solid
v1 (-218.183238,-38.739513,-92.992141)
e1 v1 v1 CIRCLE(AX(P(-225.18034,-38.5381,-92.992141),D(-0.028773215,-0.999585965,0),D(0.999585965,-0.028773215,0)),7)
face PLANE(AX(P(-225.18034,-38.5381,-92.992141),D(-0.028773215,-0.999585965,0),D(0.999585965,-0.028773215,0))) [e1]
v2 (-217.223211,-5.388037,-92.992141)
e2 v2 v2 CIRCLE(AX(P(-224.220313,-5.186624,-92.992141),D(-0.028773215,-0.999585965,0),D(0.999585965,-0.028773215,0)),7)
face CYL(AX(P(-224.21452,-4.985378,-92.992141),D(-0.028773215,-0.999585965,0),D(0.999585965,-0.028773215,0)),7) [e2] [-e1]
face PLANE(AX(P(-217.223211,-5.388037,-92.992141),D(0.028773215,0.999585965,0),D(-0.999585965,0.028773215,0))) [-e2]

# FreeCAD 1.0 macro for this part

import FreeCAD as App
import Part
import Sketcher

V = App.Vector
Q = App.Units.Quantity


def add_polygon(sketch, points):
    """Adds a closed chain of lines whose ends are joined by coincident constraints."""
    first, n = sketch.GeometryCount, len(points)
    for a, b in zip(points, points[1:] + points[:1]):
        sketch.addGeometry(Part.LineSegment(App.Vector(*a, 0), App.Vector(*b, 0)), False)
    for i in range(n):
        sketch.addConstraint(Sketcher.Constraint("Coincident", first + i, 2, first + (i + 1) % n, 1))

doc = App.newDocument("Part")
body = doc.addObject("PartDesign::Body", "Body")

# Sketch on XY plane
sketch1 = body.newObject("Sketcher::SketchObject", "Sketch")
sketch1.AttachmentSupport = (doc.getObject("XY_Plane"), [""])
sketch1.MapMode = "FlatFace"
sketch1.AttachmentOffset = App.Placement(V(0, 0, -92.992141), App.Rotation())
add_polygon(sketch1, [(-217.223211, -5.388037), (-224.220313, -5.186624), (-225.18034, -38.5381), (-218.183238, -38.739513)])  # lines 0-3
sketch1.addGeometry(Part.LineSegment(V(-224.220313, -5.186624, 0), V(-225.18034, -38.5381, 0)), True)  # axis
sketch1.addConstraint(Sketcher.Constraint("Coincident", 4, 1, 0, 2))
sketch1.addConstraint(Sketcher.Constraint("Coincident", 4, 2, 1, 2))
sketch1.addConstraint(Sketcher.Constraint("Distance", 0, Q("7 mm")))
sketch1.addConstraint(Sketcher.Constraint("Distance", 2, Q("7 mm")))
sketch1.addConstraint(Sketcher.Constraint("DistanceY", 1, 2, -1, 1, Q("38.5381 mm")))
sketch1.addConstraint(Sketcher.Constraint("DistanceX", 1, 2, 2, 2, Q("6.997102 mm")))
sketch1.addConstraint(Sketcher.Constraint("DistanceX", 0, 2, 3, 2, Q("6.997102 mm")))
sketch1.addConstraint(Sketcher.Constraint("Distance", 1, Q("33.36529 mm")))
sketch1.addConstraint(Sketcher.Constraint("DistanceX", 1, 2, -1, 1, Q("225.18034 mm")))
sketch1.addConstraint(Sketcher.Constraint("DistanceX", 3, 2, -1, 1, Q("217.223211 mm")))
revolution = body.newObject("PartDesign::Revolution", "Revolution")
revolution.Profile = sketch1
revolution.ReferenceAxis = (sketch1, ["Axis0"])
revolution.Angle = 360

doc.recompute()
